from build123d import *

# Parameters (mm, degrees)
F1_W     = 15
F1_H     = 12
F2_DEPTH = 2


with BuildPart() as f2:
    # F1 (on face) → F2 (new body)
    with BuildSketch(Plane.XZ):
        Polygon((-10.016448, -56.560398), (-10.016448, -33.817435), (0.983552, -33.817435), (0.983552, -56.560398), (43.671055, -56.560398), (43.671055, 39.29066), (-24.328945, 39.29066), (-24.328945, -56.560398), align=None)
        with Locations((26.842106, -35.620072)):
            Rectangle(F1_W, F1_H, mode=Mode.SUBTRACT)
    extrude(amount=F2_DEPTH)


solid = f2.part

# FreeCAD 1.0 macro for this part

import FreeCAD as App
import Part
import Sketcher
from FreeCAD import Vector
Q = App.Units.Quantity

doc = App.newDocument("Part")
body = doc.addObject("PartDesign::Body", "Body")

sketch1 = body.newObject("Sketcher::SketchObject", "Sketch")
sketch1.AttachmentSupport = (doc.getObject("XZ_Plane"), [""])
sketch1.MapMode = "FlatFace"
sketch1.addGeometry(Part.LineSegment(Vector(-10.016448, -56.560398, 0), Vector(-10.016448, -33.817435, 0)), False)
sketch1.addGeometry(Part.LineSegment(Vector(-10.016448, -33.817435, 0), Vector(0.983552, -33.817435, 0)), False)
sketch1.addGeometry(Part.LineSegment(Vector(0.983552, -33.817435, 0), Vector(0.983552, -56.560398, 0)), False)
sketch1.addGeometry(Part.LineSegment(Vector(0.983552, -56.560398, 0), Vector(43.671055, -56.560398, 0)), False)
sketch1.addGeometry(Part.LineSegment(Vector(43.671055, -56.560398, 0), Vector(43.671055, 39.29066, 0)), False)
sketch1.addGeometry(Part.LineSegment(Vector(43.671055, 39.29066, 0), Vector(-24.328945, 39.29066, 0)), False)
sketch1.addGeometry(Part.LineSegment(Vector(-24.328945, 39.29066, 0), Vector(-24.328945, -56.560398, 0)), False)
sketch1.addGeometry(Part.LineSegment(Vector(-24.328945, -56.560398, 0), Vector(-10.016448, -56.560398, 0)), False)
sketch1.addGeometry(Part.LineSegment(Vector(34.342106, -41.620072, 0), Vector(19.342106, -41.620072, 0)), False)
sketch1.addGeometry(Part.LineSegment(Vector(19.342106, -41.620072, 0), Vector(19.342106, -29.620072, 0)), False)
sketch1.addGeometry(Part.LineSegment(Vector(19.342106, -29.620072, 0), Vector(34.342106, -29.620072, 0)), False)
sketch1.addGeometry(Part.LineSegment(Vector(34.342106, -29.620072, 0), Vector(34.342106, -41.620072, 0)), False)
sketch1.addConstraint(Sketcher.Constraint("Coincident", 0, 2, 1, 1))
sketch1.addConstraint(Sketcher.Constraint("Coincident", 1, 2, 2, 1))
sketch1.addConstraint(Sketcher.Constraint("Coincident", 2, 2, 3, 1))
sketch1.addConstraint(Sketcher.Constraint("Coincident", 3, 2, 4, 1))
sketch1.addConstraint(Sketcher.Constraint("Coincident", 4, 2, 5, 1))
sketch1.addConstraint(Sketcher.Constraint("Coincident", 5, 2, 6, 1))
sketch1.addConstraint(Sketcher.Constraint("Coincident", 6, 2, 7, 1))
sketch1.addConstraint(Sketcher.Constraint("Coincident", 7, 2, 0, 1))
sketch1.addConstraint(Sketcher.Constraint("Coincident", 8, 2, 9, 1))
sketch1.addConstraint(Sketcher.Constraint("Coincident", 9, 2, 10, 1))
sketch1.addConstraint(Sketcher.Constraint("Coincident", 10, 2, 11, 1))
sketch1.addConstraint(Sketcher.Constraint("Coincident", 11, 2, 8, 1))
sketch1.addConstraint(Sketcher.Constraint("Vertical", 0))
sketch1.addConstraint(Sketcher.Constraint("Horizontal", 1))
sketch1.addConstraint(Sketcher.Constraint("Vertical", 2))
sketch1.addConstraint(Sketcher.Constraint("Horizontal", 3))
sketch1.addConstraint(Sketcher.Constraint("Vertical", 4))
sketch1.addConstraint(Sketcher.Constraint("Horizontal", 5))
sketch1.addConstraint(Sketcher.Constraint("Vertical", 6))
sketch1.addConstraint(Sketcher.Constraint("Horizontal", 7))
sketch1.addConstraint(Sketcher.Constraint("Horizontal", 8))
sketch1.addConstraint(Sketcher.Constraint("Vertical", 9))
sketch1.addConstraint(Sketcher.Constraint("Horizontal", 10))
sketch1.addConstraint(Sketcher.Constraint("Vertical", 11))
sketch1.addConstraint(Sketcher.Constraint("Horizontal", 3, 2, 6, 2))
sketch1.addConstraint(Sketcher.Constraint("DistanceX", 1, 1, 1, 2, Q("11 mm")))
sketch1.addConstraint(Sketcher.Constraint("DistanceX", 5, 2, 5, 1, Q("68 mm")))
sketch1.addConstraint(Sketcher.Constraint("DistanceX", 8, 2, 8, 1, Q("15 mm")))
sketch1.addConstraint(Sketcher.Constraint("DistanceY", 9, 1, 9, 2, Q("12 mm")))
sketch1.addConstraint(Sketcher.Constraint("DistanceX", 3, 1, 3, 2, Q("42.687503 mm")))
sketch1.addConstraint(Sketcher.Constraint("DistanceY", 0, 1, 0, 2, Q("22.742963 mm")))
sketch1.addConstraint(Sketcher.Constraint("DistanceY", 4, 1, 4, 2, Q("95.851058 mm")))
sketch1.addConstraint(Sketcher.Constraint("DistanceX", -1, 1, 1, 2, Q("0.983552 mm")))
sketch1.addConstraint(Sketcher.Constraint("DistanceY", -1, 1, 4, 2, Q("39.29066 mm")))
sketch1.addConstraint(Sketcher.Constraint("DistanceX", 8, 2, 3, 2, Q("24.328949 mm")))
sketch1.addConstraint(Sketcher.Constraint("DistanceY", 8, 2, -1, 1, Q("41.620072 mm")))
pad1 = body.newObject("PartDesign::Pad", "Pad")
pad1.Profile = sketch1
pad1.Length = 2

doc.recompute()
